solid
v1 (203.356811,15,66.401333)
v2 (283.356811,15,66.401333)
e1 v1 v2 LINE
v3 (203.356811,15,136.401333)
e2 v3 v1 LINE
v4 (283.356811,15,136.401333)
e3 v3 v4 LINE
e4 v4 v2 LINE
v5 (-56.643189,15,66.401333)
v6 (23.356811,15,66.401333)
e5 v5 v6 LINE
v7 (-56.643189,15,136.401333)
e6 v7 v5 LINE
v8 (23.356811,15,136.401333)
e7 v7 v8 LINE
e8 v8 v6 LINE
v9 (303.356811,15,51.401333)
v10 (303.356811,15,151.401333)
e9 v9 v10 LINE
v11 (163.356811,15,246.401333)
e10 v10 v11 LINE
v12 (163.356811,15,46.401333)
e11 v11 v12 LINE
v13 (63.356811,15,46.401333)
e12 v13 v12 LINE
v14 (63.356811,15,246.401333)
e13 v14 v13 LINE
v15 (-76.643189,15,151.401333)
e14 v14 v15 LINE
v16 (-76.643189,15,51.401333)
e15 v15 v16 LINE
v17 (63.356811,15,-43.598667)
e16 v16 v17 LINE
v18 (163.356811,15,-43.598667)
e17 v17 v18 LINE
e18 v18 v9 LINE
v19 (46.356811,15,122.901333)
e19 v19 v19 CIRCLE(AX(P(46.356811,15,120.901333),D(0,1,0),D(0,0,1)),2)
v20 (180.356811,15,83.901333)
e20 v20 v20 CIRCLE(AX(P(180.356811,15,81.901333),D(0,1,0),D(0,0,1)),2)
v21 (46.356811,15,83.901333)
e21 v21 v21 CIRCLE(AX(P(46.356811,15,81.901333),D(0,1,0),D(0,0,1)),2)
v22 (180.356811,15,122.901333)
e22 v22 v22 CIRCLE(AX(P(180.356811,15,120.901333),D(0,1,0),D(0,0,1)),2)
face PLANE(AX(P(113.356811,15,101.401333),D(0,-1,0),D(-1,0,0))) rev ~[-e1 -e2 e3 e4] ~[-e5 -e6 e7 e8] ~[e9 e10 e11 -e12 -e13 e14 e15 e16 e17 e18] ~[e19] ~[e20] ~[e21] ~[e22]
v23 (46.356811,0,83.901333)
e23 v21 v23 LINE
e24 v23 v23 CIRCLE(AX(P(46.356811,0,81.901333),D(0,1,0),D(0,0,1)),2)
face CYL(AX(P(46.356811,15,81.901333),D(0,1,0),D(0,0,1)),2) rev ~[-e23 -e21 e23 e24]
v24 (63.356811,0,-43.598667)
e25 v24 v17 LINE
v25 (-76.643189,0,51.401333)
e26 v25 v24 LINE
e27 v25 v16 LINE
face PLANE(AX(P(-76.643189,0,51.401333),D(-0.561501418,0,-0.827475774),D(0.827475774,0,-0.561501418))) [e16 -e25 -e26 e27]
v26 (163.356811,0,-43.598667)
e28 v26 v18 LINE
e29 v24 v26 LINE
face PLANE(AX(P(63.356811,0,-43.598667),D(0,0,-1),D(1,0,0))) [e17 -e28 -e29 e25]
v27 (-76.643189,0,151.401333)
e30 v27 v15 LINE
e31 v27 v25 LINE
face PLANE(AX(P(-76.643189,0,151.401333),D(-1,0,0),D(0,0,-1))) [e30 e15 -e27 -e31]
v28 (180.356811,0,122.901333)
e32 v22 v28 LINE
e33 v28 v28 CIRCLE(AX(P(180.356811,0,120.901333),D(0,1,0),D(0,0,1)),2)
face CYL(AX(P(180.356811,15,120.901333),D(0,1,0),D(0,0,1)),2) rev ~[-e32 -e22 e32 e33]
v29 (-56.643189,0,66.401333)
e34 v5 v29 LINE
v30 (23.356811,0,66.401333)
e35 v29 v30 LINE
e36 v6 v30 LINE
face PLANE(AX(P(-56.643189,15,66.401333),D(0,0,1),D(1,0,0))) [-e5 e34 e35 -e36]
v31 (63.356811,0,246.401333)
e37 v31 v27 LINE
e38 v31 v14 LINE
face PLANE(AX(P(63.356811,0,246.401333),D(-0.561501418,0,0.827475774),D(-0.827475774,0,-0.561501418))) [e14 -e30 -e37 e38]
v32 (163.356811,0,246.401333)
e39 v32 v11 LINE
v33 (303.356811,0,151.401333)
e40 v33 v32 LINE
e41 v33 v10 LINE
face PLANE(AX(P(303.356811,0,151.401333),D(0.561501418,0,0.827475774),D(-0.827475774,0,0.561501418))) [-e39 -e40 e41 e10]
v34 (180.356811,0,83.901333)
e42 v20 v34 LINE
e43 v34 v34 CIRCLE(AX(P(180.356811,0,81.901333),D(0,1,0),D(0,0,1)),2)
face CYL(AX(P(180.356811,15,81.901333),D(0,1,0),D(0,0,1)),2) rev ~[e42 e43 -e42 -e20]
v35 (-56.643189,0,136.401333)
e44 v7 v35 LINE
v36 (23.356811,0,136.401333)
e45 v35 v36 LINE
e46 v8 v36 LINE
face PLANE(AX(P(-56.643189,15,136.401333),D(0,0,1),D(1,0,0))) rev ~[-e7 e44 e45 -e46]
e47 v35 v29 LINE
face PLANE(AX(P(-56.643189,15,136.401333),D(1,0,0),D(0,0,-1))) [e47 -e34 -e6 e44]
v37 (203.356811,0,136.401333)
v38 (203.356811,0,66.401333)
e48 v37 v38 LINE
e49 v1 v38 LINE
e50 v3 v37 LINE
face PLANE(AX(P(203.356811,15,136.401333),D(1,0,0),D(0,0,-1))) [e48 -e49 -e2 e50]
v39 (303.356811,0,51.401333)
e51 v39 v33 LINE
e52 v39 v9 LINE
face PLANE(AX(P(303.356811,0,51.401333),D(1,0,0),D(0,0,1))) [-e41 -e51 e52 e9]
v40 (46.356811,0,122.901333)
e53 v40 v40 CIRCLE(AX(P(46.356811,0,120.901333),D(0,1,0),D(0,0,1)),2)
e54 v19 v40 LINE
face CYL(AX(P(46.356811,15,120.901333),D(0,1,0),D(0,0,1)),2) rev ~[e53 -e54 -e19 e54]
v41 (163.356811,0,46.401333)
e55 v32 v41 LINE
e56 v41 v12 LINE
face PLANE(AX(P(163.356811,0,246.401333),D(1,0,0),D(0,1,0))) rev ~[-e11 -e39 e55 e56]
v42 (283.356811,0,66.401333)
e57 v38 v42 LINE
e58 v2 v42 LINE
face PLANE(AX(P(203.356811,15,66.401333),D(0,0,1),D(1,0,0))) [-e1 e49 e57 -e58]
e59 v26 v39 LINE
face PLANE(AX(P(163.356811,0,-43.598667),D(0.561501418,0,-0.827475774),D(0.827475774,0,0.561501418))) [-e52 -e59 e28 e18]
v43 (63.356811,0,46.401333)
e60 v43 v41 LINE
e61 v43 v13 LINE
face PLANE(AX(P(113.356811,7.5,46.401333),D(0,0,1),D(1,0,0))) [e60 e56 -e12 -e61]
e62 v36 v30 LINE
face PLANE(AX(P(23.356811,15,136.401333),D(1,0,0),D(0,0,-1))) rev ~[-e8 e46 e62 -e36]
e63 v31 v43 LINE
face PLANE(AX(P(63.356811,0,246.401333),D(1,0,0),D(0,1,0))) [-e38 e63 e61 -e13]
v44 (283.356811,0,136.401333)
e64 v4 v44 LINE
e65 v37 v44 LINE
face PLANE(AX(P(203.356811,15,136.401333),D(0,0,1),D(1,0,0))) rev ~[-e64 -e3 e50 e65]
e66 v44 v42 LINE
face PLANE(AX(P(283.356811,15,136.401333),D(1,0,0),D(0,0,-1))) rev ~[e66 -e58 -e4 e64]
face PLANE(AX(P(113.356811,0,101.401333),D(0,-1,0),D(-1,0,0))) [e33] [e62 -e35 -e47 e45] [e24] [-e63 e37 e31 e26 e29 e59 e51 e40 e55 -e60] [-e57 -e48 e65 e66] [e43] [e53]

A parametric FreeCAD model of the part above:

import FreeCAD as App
import Part
import Sketcher

doc = App.newDocument("Part")
body = doc.addObject("PartDesign::Body", "Body")

# Sketch on XZ plane
sketch1 = doc.addObject("Sketcher::SketchObject", "Sketch")
body.addObject(sketch1)
sketch1.AttachmentSupport = (doc.XZ_Plane, [""])
sketch1.MapMode = "FlatFace"
sketch1.addGeometry(Part.LineSegment(App.Vector(63.356811, -43.598667, 0), App.Vector(-76.643189, 51.401333, 0)), False)
sketch1.addGeometry(Part.LineSegment(App.Vector(-76.643189, 51.401333, 0), App.Vector(-76.643189, 151.401333, 0)), False)
sketch1.addGeometry(Part.LineSegment(App.Vector(-76.643189, 151.401333, 0), App.Vector(63.356811, 246.401333, 0)), False)
sketch1.addGeometry(Part.LineSegment(App.Vector(63.356811, 246.401333, 0), App.Vector(163.356811, 246.401333, 0)), False)
sketch1.addGeometry(Part.LineSegment(App.Vector(163.356811, 246.401333, 0), App.Vector(303.356811, 151.401333, 0)), False)
sketch1.addGeometry(Part.LineSegment(App.Vector(303.356811, 151.401333, 0), App.Vector(303.356811, 51.401333, 0)), False)
sketch1.addGeometry(Part.LineSegment(App.Vector(303.356811, 51.401333, 0), App.Vector(163.356811, -43.598667, 0)), False)
sketch1.addGeometry(Part.LineSegment(App.Vector(163.356811, -43.598667, 0), App.Vector(63.356811, -43.598667, 0)), False)
sketch1.addConstraint(Sketcher.Constraint("Coincident", 0, 2, 1, 1))
sketch1.addConstraint(Sketcher.Constraint("Coincident", 1, 2, 2, 1))
sketch1.addConstraint(Sketcher.Constraint("Coincident", 2, 2, 3, 1))
sketch1.addConstraint(Sketcher.Constraint("Coincident", 3, 2, 4, 1))
sketch1.addConstraint(Sketcher.Constraint("Coincident", 4, 2, 5, 1))
sketch1.addConstraint(Sketcher.Constraint("Coincident", 5, 2, 6, 1))
sketch1.addConstraint(Sketcher.Constraint("Coincident", 6, 2, 7, 1))
sketch1.addConstraint(Sketcher.Constraint("Coincident", 7, 2, 0, 1))
sketch1.addConstraint(Sketcher.Constraint("Vertical", 1))
sketch1.addConstraint(Sketcher.Constraint("Horizontal", 3))
sketch1.addConstraint(Sketcher.Constraint("Vertical", 5))
sketch1.addConstraint(Sketcher.Constraint("Horizontal", 7))
sketch1.addConstraint(Sketcher.Constraint("Parallel", 0, 4))
sketch1.addConstraint(Sketcher.Constraint("Parallel", 2, 6))
sketch1.addConstraint(Sketcher.Constraint("Horizontal", 1, 2, 4, 2))
sketch1.addConstraint(Sketcher.Constraint("Horizontal", 0, 2, 5, 2))
sketch1.addConstraint(Sketcher.Constraint("Vertical", 3, 2, 6, 2))
sketch1.addConstraint(Sketcher.Constraint("Vertical", 2, 2, 7, 2))
sketch1.addConstraint(Sketcher.Constraint("Equal", 7, 1))
sketch1.addConstraint(Sketcher.Constraint("DistanceX", 3, 1, 3, 2, 100.0))
sketch1.addConstraint(Sketcher.Constraint("DistanceX", 1, 2, 2, 2, 140.0))
sketch1.addConstraint(Sketcher.Constraint("DistanceY", 1, 2, 2, 2, 95.0))
sketch1.addConstraint(Sketcher.Constraint("DistanceX", 0, 2, -1, 1, 76.643189))
sketch1.addConstraint(Sketcher.Constraint("DistanceY", -1, 1, 0, 2, 51.401333))
pad1 = doc.addObject("PartDesign::Pad", "Pad")
body.addObject(pad1)
pad1.Profile = sketch1
pad1.Length = 15
pad1.Reversed = True

# Sketch on XY plane
sketch2 = doc.addObject("Sketcher::SketchObject", "Sketch001")
body.addObject(sketch2)
sketch2.AttachmentSupport = (doc.XY_Plane, [""])
sketch2.MapMode = "FlatFace"
sketch2.AttachmentOffset = App.Placement(App.Vector(0, 0, 246.401333), App.Rotation())
sketch2.addGeometry(Part.LineSegment(App.Vector(63.356811, 15, 0), App.Vector(63.356811, 0, 0)), False)
sketch2.addGeometry(Part.LineSegment(App.Vector(63.356811, 0, 0), App.Vector(163.356811, 0, 0)), False)
sketch2.addGeometry(Part.LineSegment(App.Vector(163.356811, 0, 0), App.Vector(163.356811, 15, 0)), False)
sketch2.addGeometry(Part.LineSegment(App.Vector(163.356811, 15, 0), App.Vector(63.356811, 15, 0)), False)
sketch2.addConstraint(Sketcher.Constraint("Coincident", 0, 2, 1, 1))
sketch2.addConstraint(Sketcher.Constraint("Coincident", 1, 2, 2, 1))
sketch2.addConstraint(Sketcher.Constraint("Coincident", 2, 2, 3, 1))
sketch2.addConstraint(Sketcher.Constraint("Coincident", 3, 2, 0, 1))
sketch2.addConstraint(Sketcher.Constraint("Vertical", 0))
sketch2.addConstraint(Sketcher.Constraint("Horizontal", 1))
sketch2.addConstraint(Sketcher.Constraint("Vertical", 2))
sketch2.addConstraint(Sketcher.Constraint("Horizontal", 3))
sketch2.addConstraint(Sketcher.Constraint("PointOnObject", 0, 2, -1))
sketch2.addConstraint(Sketcher.Constraint("DistanceX", 1, 1, 1, 2, 100.0))
sketch2.addConstraint(Sketcher.Constraint("DistanceY", 0, 2, 0, 1, 15.0))
sketch2.addConstraint(Sketcher.Constraint("DistanceX", -1, 1, 0, 2, 63.356811))
pocket1 = doc.addObject("PartDesign::Pocket", "Pocket")
body.addObject(pocket1)
pocket1.Profile = sketch2
pocket1.Length = 200

# Sketch on XZ plane
sketch3 = doc.addObject("Sketcher::SketchObject", "Sketch002")
body.addObject(sketch3)
sketch3.AttachmentSupport = (doc.XZ_Plane, [""])
sketch3.MapMode = "FlatFace"
sketch3.AttachmentOffset = App.Placement(App.Vector(0, 0, -15), App.Rotation())
sketch3.addGeometry(Part.LineSegment(App.Vector(-56.643189, 66.401333, 0), App.Vector(-56.643189, 136.401333, 0)), False)
sketch3.addGeometry(Part.LineSegment(App.Vector(-56.643189, 136.401333, 0), App.Vector(23.356811, 136.401333, 0)), False)
sketch3.addGeometry(Part.LineSegment(App.Vector(23.356811, 136.401333, 0), App.Vector(23.356811, 66.401333, 0)), False)
sketch3.addGeometry(Part.LineSegment(App.Vector(23.356811, 66.401333, 0), App.Vector(-56.643189, 66.401333, 0)), False)
sketch3.addConstraint(Sketcher.Constraint("Coincident", 0, 2, 1, 1))
sketch3.addConstraint(Sketcher.Constraint("Coincident", 1, 2, 2, 1))
sketch3.addConstraint(Sketcher.Constraint("Coincident", 2, 2, 3, 1))
sketch3.addConstraint(Sketcher.Constraint("Coincident", 3, 2, 0, 1))
sketch3.addConstraint(Sketcher.Constraint("Vertical", 0))
sketch3.addConstraint(Sketcher.Constraint("Horizontal", 1))
sketch3.addConstraint(Sketcher.Constraint("Vertical", 2))
sketch3.addConstraint(Sketcher.Constraint("Horizontal", 3))
sketch3.addConstraint(Sketcher.Constraint("DistanceX", 1, 1, 1, 2, 80.0))
sketch3.addConstraint(Sketcher.Constraint("DistanceY", 0, 1, 0, 2, 70.0))
sketch3.addConstraint(Sketcher.Constraint("DistanceX", 0, 2, -1, 1, 56.643189))
sketch3.addConstraint(Sketcher.Constraint("DistanceY", -1, 1, 0, 2, 136.401333))
pocket2 = doc.addObject("PartDesign::Pocket", "Pocket001")
body.addObject(pocket2)
pocket2.Profile = sketch3
pocket2.Type = "UpToFirst"
pocket2.Reversed = True

# Sketch on XZ plane
sketch4 = doc.addObject("Sketcher::SketchObject", "Sketch003")
body.addObject(sketch4)
sketch4.AttachmentSupport = (doc.XZ_Plane, [""])
sketch4.MapMode = "FlatFace"
sketch4.AttachmentOffset = App.Placement(App.Vector(0, 0, -15), App.Rotation())
sketch4.addGeometry(Part.LineSegment(App.Vector(203.356811, 66.401333, 0), App.Vector(203.356811, 136.401333, 0)), False)
sketch4.addGeometry(Part.LineSegment(App.Vector(203.356811, 136.401333, 0), App.Vector(283.356811, 136.401333, 0)), False)
sketch4.addGeometry(Part.LineSegment(App.Vector(283.356811, 136.401333, 0), App.Vector(283.356811, 66.401333, 0)), False)
sketch4.addGeometry(Part.LineSegment(App.Vector(283.356811, 66.401333, 0), App.Vector(203.356811, 66.401333, 0)), False)
sketch4.addConstraint(Sketcher.Constraint("Coincident", 0, 2, 1, 1))
sketch4.addConstraint(Sketcher.Constraint("Coincident", 1, 2, 2, 1))
sketch4.addConstraint(Sketcher.Constraint("Coincident", 2, 2, 3, 1))
sketch4.addConstraint(Sketcher.Constraint("Coincident", 3, 2, 0, 1))
sketch4.addConstraint(Sketcher.Constraint("Vertical", 0))
sketch4.addConstraint(Sketcher.Constraint("Horizontal", 1))
sketch4.addConstraint(Sketcher.Constraint("Vertical", 2))
sketch4.addConstraint(Sketcher.Constraint("Horizontal", 3))
sketch4.addConstraint(Sketcher.Constraint("DistanceX", 1, 1, 1, 2, 80.0))
sketch4.addConstraint(Sketcher.Constraint("DistanceY", 0, 1, 0, 2, 70.0))
sketch4.addConstraint(Sketcher.Constraint("DistanceX", -1, 1, 0, 2, 203.356811))
sketch4.addConstraint(Sketcher.Constraint("DistanceY", -1, 1, 0, 2, 136.401333))
pocket3 = doc.addObject("PartDesign::Pocket", "Pocket002")
body.addObject(pocket3)
pocket3.Profile = sketch4
pocket3.Type = "UpToFirst"
pocket3.Reversed = True

# Sketch on XZ plane
sketch5 = doc.addObject("Sketcher::SketchObject", "Sketch004")
body.addObject(sketch5)
sketch5.AttachmentSupport = (doc.XZ_Plane, [""])
sketch5.MapMode = "FlatFace"
sketch5.AttachmentOffset = App.Placement(App.Vector(0, 0, -15), App.Rotation())
sketch5.addGeometry(Part.Circle(App.Vector(180.356811, 120.901333, 0), App.Vector(0, 0, 1), 2), False)
sketch5.addConstraint(Sketcher.Constraint("Diameter", 0, 4.0))
sketch5.addConstraint(Sketcher.Constraint("DistanceX", -1, 1, 0, 3, 180.356811))
sketch5.addConstraint(Sketcher.Constraint("DistanceY", -1, 1, 0, 3, 120.901333))
pocket4 = doc.addObject("PartDesign::Pocket", "Pocket003")
body.addObject(pocket4)
pocket4.Profile = sketch5
pocket4.Type = "UpToFirst"
pocket4.Reversed = True

# Sketch on XZ plane
sketch6 = doc.addObject("Sketcher::SketchObject", "Sketch005")
body.addObject(sketch6)
sketch6.AttachmentSupport = (doc.XZ_Plane, [""])
sketch6.MapMode = "FlatFace"
sketch6.AttachmentOffset = App.Placement(App.Vector(0, 0, -15), App.Rotation())
sketch6.addGeometry(Part.Circle(App.Vector(180.356811, 81.901333, 0), App.Vector(0, 0, 1), 2), False)
sketch6.addConstraint(Sketcher.Constraint("Diameter", 0, 4.0))
sketch6.addConstraint(Sketcher.Constraint("DistanceX", -1, 1, 0, 3, 180.356811))
sketch6.addConstraint(Sketcher.Constraint("DistanceY", -1, 1, 0, 3, 81.901333))
pocket5 = doc.addObject("PartDesign::Pocket", "Pocket004")
body.addObject(pocket5)
pocket5.Profile = sketch6
pocket5.Type = "UpToFirst"
pocket5.Reversed = True

# Sketch on XZ plane
sketch7 = doc.addObject("Sketcher::SketchObject", "Sketch006")
body.addObject(sketch7)
sketch7.AttachmentSupport = (doc.XZ_Plane, [""])
sketch7.MapMode = "FlatFace"
sketch7.AttachmentOffset = App.Placement(App.Vector(0, 0, -15), App.Rotation())
sketch7.addGeometry(Part.Circle(App.Vector(46.356811, 120.901333, 0), App.Vector(0, 0, 1), 2), False)
sketch7.addConstraint(Sketcher.Constraint("Diameter", 0, 4.0))
sketch7.addConstraint(Sketcher.Constraint("DistanceX", -1, 1, 0, 3, 46.356811))
sketch7.addConstraint(Sketcher.Constraint("DistanceY", -1, 1, 0, 3, 120.901333))
pocket6 = doc.addObject("PartDesign::Pocket", "Pocket005")
body.addObject(pocket6)
pocket6.Profile = sketch7
pocket6.Type = "UpToFirst"
pocket6.Reversed = True

# Sketch on XZ plane
sketch8 = doc.addObject("Sketcher::SketchObject", "Sketch007")
body.addObject(sketch8)
sketch8.AttachmentSupport = (doc.XZ_Plane, [""])
sketch8.MapMode = "FlatFace"
sketch8.AttachmentOffset = App.Placement(App.Vector(0, 0, -15), App.Rotation())
sketch8.addGeometry(Part.Circle(App.Vector(46.356811, 81.901333, 0), App.Vector(0, 0, 1), 2), False)
sketch8.addConstraint(Sketcher.Constraint("Diameter", 0, 4.0))
sketch8.addConstraint(Sketcher.Constraint("DistanceX", -1, 1, 0, 3, 46.356811))
sketch8.addConstraint(Sketcher.Constraint("DistanceY", -1, 1, 0, 3, 81.901333))
pocket7 = doc.addObject("PartDesign::Pocket", "Pocket006")
body.addObject(pocket7)
pocket7.Profile = sketch8
pocket7.Type = "UpToFirst"
pocket7.Reversed = True

doc.recompute()
